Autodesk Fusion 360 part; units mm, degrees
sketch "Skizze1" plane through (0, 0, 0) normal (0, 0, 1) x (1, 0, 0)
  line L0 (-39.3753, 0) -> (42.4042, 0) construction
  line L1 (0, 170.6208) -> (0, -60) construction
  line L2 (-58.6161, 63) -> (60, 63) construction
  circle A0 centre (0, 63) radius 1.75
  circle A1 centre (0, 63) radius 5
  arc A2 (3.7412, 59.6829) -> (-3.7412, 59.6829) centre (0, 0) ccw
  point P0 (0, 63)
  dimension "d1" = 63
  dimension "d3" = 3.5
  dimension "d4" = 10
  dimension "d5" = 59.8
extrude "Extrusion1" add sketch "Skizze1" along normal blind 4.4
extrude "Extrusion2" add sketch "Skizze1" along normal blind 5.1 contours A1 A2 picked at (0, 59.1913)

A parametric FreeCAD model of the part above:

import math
import FreeCAD as App
import Part
import Sketcher

doc = App.newDocument("Part")
body = doc.addObject("PartDesign::Body", "Body")

sketch1 = body.newObject("Sketcher::SketchObject", "Sketch")
sketch1.AttachmentSupport = (doc.getObject("XY_Plane"), [""])
sketch1.MapMode = "FlatFace"
sketch1.addGeometry([
    Part.Circle(App.Vector(0, 63, 0), App.Vector(0, 0, 1), 5),
    Part.Circle(App.Vector(0, 63, 0), App.Vector(0, 0, 1), 1.8),
], False)
sketch1.addConstraint([
    Sketcher.Constraint("Coincident", 1, 3, 0, 3),
    Sketcher.Constraint("PointOnObject", 0, 3, -2),
    Sketcher.Constraint("Diameter", 0, 10.0),
    Sketcher.Constraint("Diameter", 1, 3.5),
    Sketcher.Constraint("DistanceY", -1, 1, 0, 3, 63.0),
])
pad1 = body.newObject("PartDesign::Pad", "Pad")
pad1.Profile = sketch1
pad1.Length = 4.4

sketch2 = body.newObject("Sketcher::SketchObject", "Sketch001")
sketch2.AttachmentSupport = (doc.getObject("XY_Plane"), [""])
sketch2.MapMode = "FlatFace"
sketch2.addGeometry([
    Part.ArcOfCircle(Part.Circle(App.Vector(0, 0, 0), App.Vector(0, 0, 1), 60), math.radians(86.41), math.radians(93.59)),
    Part.ArcOfCircle(Part.Circle(App.Vector(0, 63, 0), App.Vector(0, 0, 1), 5), math.radians(-138), math.radians(-42)),
], False)
sketch2.addConstraint([
    Sketcher.Constraint("Coincident", 0, 1, 1, 2),
    Sketcher.Constraint("Coincident", 1, 1, 0, 2),
    Sketcher.Constraint("Coincident", 0, 3, -1, 1),
    Sketcher.Constraint("PointOnObject", 1, 3, -2),
    Sketcher.Constraint("Radius", 1, 5.0),
    Sketcher.Constraint("Radius", 0, 59.8),
    Sketcher.Constraint("DistanceY", -1, 1, 1, 3, 63.0),
])
pad2 = body.newObject("PartDesign::Pad", "Pad001")
pad2.Profile = sketch2
pad2.Length = 5.1

doc.recompute()
